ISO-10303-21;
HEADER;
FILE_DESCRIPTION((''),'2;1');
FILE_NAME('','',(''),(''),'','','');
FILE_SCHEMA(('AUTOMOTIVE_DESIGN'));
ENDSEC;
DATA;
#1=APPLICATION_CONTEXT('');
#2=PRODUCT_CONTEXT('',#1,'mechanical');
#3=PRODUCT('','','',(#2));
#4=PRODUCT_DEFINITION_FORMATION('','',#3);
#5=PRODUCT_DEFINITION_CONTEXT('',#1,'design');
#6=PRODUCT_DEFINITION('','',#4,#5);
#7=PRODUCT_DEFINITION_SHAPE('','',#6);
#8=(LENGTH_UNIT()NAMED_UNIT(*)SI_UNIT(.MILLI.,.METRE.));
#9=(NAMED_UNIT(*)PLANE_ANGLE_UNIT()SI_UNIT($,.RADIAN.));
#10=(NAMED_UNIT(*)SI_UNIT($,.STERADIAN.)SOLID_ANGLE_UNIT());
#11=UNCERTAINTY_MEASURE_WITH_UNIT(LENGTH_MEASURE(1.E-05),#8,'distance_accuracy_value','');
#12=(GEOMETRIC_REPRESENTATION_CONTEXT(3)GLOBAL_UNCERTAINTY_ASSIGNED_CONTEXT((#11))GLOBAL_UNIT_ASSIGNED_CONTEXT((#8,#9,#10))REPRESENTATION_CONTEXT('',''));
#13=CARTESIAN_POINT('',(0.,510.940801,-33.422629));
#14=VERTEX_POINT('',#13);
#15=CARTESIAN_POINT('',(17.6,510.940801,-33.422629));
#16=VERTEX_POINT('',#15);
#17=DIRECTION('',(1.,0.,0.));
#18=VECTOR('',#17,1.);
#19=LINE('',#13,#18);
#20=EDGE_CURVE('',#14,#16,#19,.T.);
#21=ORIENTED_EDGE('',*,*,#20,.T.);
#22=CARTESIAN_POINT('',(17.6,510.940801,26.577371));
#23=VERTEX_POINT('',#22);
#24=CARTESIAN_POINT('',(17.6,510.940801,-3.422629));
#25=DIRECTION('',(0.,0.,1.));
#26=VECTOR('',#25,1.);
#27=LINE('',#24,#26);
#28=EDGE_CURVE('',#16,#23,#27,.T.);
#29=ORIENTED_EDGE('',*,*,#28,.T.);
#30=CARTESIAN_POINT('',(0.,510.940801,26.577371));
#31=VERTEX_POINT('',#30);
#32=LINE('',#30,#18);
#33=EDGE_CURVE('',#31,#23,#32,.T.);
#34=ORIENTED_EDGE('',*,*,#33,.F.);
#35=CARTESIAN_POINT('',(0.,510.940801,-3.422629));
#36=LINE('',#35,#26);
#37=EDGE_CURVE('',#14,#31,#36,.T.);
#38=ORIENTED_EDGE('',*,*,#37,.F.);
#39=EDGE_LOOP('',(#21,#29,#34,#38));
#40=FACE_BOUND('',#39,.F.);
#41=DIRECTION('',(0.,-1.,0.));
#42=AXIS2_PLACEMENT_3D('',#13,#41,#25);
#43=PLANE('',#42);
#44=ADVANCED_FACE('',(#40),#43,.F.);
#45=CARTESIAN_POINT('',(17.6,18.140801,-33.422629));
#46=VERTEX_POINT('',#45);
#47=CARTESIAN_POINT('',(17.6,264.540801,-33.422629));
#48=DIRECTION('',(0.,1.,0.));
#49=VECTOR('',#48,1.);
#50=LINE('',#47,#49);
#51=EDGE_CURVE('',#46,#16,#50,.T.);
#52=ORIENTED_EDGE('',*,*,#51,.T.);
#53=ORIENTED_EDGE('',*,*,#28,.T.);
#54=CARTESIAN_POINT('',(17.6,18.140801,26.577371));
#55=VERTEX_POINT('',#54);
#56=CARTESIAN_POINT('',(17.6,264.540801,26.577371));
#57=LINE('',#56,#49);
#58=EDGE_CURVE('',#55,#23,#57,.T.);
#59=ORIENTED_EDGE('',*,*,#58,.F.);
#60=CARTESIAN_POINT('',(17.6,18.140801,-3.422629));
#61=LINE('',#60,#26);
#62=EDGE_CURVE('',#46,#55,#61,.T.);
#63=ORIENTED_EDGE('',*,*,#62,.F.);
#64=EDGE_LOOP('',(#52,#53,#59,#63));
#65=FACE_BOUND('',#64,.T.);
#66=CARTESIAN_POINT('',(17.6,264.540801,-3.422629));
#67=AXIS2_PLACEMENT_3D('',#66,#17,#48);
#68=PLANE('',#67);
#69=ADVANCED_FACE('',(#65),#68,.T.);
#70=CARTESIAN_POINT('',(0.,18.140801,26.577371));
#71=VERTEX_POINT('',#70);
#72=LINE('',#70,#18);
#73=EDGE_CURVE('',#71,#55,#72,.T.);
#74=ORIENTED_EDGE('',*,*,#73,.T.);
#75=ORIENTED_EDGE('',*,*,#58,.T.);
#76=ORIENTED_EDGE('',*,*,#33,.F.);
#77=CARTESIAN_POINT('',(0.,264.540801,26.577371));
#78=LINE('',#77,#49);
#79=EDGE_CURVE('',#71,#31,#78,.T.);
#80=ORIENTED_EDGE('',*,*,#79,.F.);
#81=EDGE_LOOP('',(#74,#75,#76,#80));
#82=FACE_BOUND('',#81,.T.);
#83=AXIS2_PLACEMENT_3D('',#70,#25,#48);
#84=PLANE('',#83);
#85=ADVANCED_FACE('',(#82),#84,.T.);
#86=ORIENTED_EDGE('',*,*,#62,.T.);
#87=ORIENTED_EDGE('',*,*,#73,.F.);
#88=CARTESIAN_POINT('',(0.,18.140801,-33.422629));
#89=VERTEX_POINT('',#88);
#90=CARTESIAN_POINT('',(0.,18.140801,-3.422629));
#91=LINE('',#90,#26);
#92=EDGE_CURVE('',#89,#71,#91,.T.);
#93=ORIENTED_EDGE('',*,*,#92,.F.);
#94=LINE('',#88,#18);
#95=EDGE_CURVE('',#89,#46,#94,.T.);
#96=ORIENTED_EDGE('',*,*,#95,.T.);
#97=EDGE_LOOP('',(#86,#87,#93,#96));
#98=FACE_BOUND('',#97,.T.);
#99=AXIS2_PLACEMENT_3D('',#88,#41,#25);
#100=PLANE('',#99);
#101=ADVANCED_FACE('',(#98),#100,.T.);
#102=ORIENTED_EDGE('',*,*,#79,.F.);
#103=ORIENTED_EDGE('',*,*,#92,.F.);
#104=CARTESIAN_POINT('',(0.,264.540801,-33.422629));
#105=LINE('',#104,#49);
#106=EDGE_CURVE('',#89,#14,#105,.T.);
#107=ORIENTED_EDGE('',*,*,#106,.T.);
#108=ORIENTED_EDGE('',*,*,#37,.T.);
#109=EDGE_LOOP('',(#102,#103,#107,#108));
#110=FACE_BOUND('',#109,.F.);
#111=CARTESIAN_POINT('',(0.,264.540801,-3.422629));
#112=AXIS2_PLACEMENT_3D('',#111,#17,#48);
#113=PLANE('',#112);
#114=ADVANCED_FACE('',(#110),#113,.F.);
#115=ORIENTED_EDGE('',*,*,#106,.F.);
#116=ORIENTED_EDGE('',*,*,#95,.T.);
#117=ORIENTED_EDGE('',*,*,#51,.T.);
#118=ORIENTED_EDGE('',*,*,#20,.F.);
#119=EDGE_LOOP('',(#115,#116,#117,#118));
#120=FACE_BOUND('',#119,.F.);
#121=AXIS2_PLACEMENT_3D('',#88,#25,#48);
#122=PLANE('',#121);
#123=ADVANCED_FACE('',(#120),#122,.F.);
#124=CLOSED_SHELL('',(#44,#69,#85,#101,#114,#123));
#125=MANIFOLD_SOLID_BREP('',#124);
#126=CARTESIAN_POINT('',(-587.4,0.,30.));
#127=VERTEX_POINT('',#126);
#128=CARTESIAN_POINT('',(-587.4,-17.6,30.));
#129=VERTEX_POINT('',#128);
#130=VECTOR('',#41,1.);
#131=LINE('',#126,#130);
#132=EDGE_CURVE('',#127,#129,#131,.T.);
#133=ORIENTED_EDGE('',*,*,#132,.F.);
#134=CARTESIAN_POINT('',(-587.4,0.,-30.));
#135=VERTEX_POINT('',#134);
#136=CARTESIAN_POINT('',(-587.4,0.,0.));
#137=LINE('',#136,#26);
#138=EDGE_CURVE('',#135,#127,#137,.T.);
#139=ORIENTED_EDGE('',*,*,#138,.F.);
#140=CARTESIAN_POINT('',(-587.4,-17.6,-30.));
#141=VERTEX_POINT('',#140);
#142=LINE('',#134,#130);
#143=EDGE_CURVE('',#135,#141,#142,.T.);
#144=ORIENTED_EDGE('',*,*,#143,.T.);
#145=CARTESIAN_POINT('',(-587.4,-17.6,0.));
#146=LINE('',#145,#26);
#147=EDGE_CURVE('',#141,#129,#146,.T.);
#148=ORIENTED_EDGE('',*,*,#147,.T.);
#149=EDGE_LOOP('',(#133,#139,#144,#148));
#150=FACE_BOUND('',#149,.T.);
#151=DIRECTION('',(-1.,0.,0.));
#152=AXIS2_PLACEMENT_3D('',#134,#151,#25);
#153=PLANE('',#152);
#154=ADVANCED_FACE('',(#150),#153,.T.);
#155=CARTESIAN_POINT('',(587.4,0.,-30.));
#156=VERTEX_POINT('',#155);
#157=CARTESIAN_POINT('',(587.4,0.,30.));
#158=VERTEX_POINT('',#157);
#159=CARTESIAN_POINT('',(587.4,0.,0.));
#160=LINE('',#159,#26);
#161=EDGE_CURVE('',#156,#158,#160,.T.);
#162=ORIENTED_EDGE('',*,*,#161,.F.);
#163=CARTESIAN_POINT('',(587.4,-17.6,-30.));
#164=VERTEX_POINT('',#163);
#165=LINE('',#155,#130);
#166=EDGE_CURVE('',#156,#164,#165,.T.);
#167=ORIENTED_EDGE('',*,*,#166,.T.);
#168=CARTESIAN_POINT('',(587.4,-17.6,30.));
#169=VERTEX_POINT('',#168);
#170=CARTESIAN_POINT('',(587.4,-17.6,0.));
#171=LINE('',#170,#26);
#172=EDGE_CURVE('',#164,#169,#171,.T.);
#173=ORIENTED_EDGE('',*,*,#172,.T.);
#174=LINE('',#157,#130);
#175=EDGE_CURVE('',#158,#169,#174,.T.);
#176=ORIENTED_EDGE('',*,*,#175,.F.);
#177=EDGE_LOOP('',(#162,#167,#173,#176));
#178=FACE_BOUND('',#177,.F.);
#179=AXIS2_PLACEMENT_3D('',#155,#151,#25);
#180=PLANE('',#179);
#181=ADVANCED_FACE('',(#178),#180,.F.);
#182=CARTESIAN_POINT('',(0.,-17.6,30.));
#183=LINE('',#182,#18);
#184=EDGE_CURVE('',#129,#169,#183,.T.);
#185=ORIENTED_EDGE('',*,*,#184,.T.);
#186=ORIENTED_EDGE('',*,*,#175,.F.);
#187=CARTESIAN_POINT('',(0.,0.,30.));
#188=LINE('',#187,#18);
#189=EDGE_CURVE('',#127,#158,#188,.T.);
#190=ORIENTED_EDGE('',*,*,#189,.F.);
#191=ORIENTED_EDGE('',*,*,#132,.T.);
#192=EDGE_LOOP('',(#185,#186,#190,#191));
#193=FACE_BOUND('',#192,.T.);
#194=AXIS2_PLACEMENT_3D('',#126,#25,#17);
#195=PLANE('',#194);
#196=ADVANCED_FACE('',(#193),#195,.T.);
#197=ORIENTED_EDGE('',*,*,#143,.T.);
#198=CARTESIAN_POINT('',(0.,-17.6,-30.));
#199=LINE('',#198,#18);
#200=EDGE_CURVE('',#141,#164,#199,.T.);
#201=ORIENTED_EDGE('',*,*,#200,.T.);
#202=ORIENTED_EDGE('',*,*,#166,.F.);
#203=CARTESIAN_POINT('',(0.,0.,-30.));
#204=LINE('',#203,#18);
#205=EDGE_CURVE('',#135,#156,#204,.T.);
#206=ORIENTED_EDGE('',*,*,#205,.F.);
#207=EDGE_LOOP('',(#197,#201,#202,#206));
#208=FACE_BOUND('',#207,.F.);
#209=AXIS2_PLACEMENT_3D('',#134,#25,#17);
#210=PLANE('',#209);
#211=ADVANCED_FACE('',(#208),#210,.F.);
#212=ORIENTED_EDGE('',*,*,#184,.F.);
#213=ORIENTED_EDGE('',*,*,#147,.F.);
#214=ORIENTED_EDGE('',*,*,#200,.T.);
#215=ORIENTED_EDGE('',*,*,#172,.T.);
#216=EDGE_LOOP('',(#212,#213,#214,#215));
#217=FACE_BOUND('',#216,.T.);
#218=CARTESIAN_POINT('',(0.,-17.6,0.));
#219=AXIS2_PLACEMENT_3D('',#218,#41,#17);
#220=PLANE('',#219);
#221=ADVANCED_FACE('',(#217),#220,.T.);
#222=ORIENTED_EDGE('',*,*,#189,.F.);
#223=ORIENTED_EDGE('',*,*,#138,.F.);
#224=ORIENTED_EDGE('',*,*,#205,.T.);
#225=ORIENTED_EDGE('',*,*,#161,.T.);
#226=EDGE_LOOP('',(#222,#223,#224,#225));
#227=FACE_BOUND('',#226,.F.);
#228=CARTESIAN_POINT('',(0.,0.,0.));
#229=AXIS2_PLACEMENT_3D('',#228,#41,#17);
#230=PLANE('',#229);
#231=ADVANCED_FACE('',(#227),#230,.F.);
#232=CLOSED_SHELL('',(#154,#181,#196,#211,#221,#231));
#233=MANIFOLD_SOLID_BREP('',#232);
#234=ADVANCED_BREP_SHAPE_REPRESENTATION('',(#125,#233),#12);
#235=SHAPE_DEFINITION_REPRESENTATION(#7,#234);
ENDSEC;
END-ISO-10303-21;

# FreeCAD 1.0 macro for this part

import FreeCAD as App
import Part
import Sketcher

V = App.Vector

doc = App.newDocument("Part")
params = doc.addObject("Spreadsheet::Sheet", "Params")
for row, (alias, value) in enumerate([
    ("sketch1_height", "60 mm"),
    ("sketch1_width", "1174.8 mm"),
    ("pad1_length", "17.6 mm"),
    ("sketch2_height", "60 mm"),
    ("sketch2_width", "492.8 mm"),
    ("pad2_length", "17.6 mm"),
], start=1):
    params.set(f"A{row}", alias)
    params.set(f"B{row}", "=" + value)
    params.setAlias(f"B{row}", alias)

body = doc.addObject("PartDesign::Body", "Body")

# Sketch on XZ plane
sketch1 = body.newObject("Sketcher::SketchObject", "Sketch")
sketch1.AttachmentSupport = (doc.getObject("XZ_Plane"), [""])
sketch1.MapMode = "FlatFace"
sketch1.addGeometry(Part.LineSegment(V(-587, 30, 0), V(-587, -30, 0)), False)
sketch1.addGeometry(Part.LineSegment(V(-587, -30, 0), V(587, -30, 0)), False)
sketch1.addGeometry(Part.LineSegment(V(587, -30, 0), V(587, 30, 0)), False)
sketch1.addGeometry(Part.LineSegment(V(587, 30, 0), V(-587, 30, 0)), False)
sketch1.addConstraint(Sketcher.Constraint("Coincident", 0, 2, 1, 1))
sketch1.addConstraint(Sketcher.Constraint("Coincident", 1, 2, 2, 1))
sketch1.addConstraint(Sketcher.Constraint("Coincident", 2, 2, 3, 1))
sketch1.addConstraint(Sketcher.Constraint("Coincident", 3, 2, 0, 1))
sketch1.addConstraint(Sketcher.Constraint("Vertical", 0))
sketch1.addConstraint(Sketcher.Constraint("Horizontal", 1))
sketch1.addConstraint(Sketcher.Constraint("Vertical", 2))
sketch1.addConstraint(Sketcher.Constraint("Horizontal", 3))
sketch1.addConstraint(Sketcher.Constraint("Symmetric", 0, 2, 2, 2, -1, 1))
sketch1.addConstraint(Sketcher.Constraint("DistanceY", 0, 2, 0, 1, 60.0))
sketch1.addConstraint(Sketcher.Constraint("DistanceX", 1, 1, 1, 2, 1174.8))
sketch1.setExpression("Constraints[9]", "Params.sketch1_height")
sketch1.setExpression("Constraints[10]", "Params.sketch1_width")
pad1 = body.newObject("PartDesign::Pad", "Pad")
pad1.Profile = sketch1
pad1.setExpression("Length", "Params.pad1_length")
body2 = doc.addObject("PartDesign::Body", "Body001")

# Sketch on YZ plane
sketch2 = body2.newObject("Sketcher::SketchObject", "Sketch001")
sketch2.AttachmentSupport = (doc.getObject("YZ_Plane001"), [""])
sketch2.MapMode = "FlatFace"
sketch2.addGeometry(Part.LineSegment(V(18, 27, 0), V(18, -33, 0)), False)
sketch2.addGeometry(Part.LineSegment(V(18, -33, 0), V(511, -33, 0)), False)
sketch2.addGeometry(Part.LineSegment(V(511, -33, 0), V(511, 27, 0)), False)
sketch2.addGeometry(Part.LineSegment(V(511, 27, 0), V(18, 27, 0)), False)
sketch2.addConstraint(Sketcher.Constraint("Coincident", 0, 2, 1, 1))
sketch2.addConstraint(Sketcher.Constraint("Coincident", 1, 2, 2, 1))
sketch2.addConstraint(Sketcher.Constraint("Coincident", 2, 2, 3, 1))
sketch2.addConstraint(Sketcher.Constraint("Coincident", 3, 2, 0, 1))
sketch2.addConstraint(Sketcher.Constraint("Vertical", 0))
sketch2.addConstraint(Sketcher.Constraint("Horizontal", 1))
sketch2.addConstraint(Sketcher.Constraint("Vertical", 2))
sketch2.addConstraint(Sketcher.Constraint("Horizontal", 3))
sketch2.addConstraint(Sketcher.Constraint("DistanceY", 0, 2, 0, 1, 60.0))
sketch2.addConstraint(Sketcher.Constraint("DistanceX", 1, 1, 1, 2, 492.8))
sketch2.addConstraint(Sketcher.Constraint("DistanceX", -1, 1, 0, 2, 18.140801))
sketch2.addConstraint(Sketcher.Constraint("DistanceY", 0, 2, -1, 1, 33.422629))
sketch2.setExpression("Constraints[8]", "Params.sketch2_height")
sketch2.setExpression("Constraints[9]", "Params.sketch2_width")
pad2 = body2.newObject("PartDesign::Pad", "Pad001")
pad2.Profile = sketch2
pad2.setExpression("Length", "Params.pad2_length")

doc.recompute()
